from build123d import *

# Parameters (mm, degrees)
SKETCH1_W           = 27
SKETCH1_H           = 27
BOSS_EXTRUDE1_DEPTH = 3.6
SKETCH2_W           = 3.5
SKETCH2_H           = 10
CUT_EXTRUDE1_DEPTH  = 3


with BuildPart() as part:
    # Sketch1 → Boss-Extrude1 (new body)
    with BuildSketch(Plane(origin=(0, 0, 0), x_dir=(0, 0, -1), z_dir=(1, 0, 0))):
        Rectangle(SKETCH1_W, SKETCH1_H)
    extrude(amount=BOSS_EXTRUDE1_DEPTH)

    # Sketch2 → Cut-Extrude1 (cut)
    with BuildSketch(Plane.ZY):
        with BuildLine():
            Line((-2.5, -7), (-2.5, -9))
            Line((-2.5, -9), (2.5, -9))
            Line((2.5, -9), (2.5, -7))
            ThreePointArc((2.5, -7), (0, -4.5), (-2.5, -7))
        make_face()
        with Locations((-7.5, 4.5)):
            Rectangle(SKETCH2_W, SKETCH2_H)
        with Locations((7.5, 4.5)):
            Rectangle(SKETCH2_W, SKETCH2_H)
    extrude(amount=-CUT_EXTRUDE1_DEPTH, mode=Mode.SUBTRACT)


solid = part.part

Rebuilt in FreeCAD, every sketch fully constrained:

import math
import FreeCAD as App
import Part
import Sketcher
from FreeCAD import Vector
Q = App.Units.Quantity


def add_polygon(sketch, points):
    """Adds a closed chain of lines whose ends are joined by coincident constraints."""
    first, n = sketch.GeometryCount, len(points)
    for a, b in zip(points, points[1:] + points[:1]):
        sketch.addGeometry(Part.LineSegment(App.Vector(*a, 0), App.Vector(*b, 0)), False)
    for i in range(n):
        sketch.addConstraint(Sketcher.Constraint("Coincident", first + i, 2, first + (i + 1) % n, 1))

doc = App.newDocument("Part")
body = doc.addObject("PartDesign::Body", "Body")

sketch1 = doc.addObject("Sketcher::SketchObject", "Sketch")
body.addObject(sketch1)
sketch1.AttachmentSupport = (doc.YZ_Plane, [""])
sketch1.MapMode = "FlatFace"
add_polygon(sketch1, [(13.5, 13.5), (-13.5, 13.5), (-13.5, -13.5), (13.5, -13.5)])
sketch1.addConstraint(Sketcher.Constraint("Horizontal", 0))
sketch1.addConstraint(Sketcher.Constraint("Vertical", 1))
sketch1.addConstraint(Sketcher.Constraint("Horizontal", 2))
sketch1.addConstraint(Sketcher.Constraint("Vertical", 3))
sketch1.addConstraint(Sketcher.Constraint("Symmetric", 0, 2, 2, 2, -1, 1))
sketch1.addConstraint(Sketcher.Constraint("Equal", 2, 1))
sketch1.addConstraint(Sketcher.Constraint("DistanceX", 0, 2, 0, 1, Q("27 mm")))
pad1 = doc.addObject("PartDesign::Pad", "Pad")
body.addObject(pad1)
pad1.Profile = sketch1
pad1.Length = 3.6

sketch2 = doc.addObject("Sketcher::SketchObject", "Sketch001")
body.addObject(sketch2)
sketch2.AttachmentSupport = (doc.YZ_Plane, [""])
sketch2.MapMode = "FlatFace"
sketch2.addGeometry(Part.LineSegment(Vector(-7, -2.5, 0), Vector(-9, -2.5, 0)), False)
sketch2.addGeometry(Part.LineSegment(Vector(-9, -2.5, 0), Vector(-9, 2.5, 0)), False)
sketch2.addGeometry(Part.LineSegment(Vector(-9, 2.5, 0), Vector(-7, 2.5, 0)), False)
sketch2.addGeometry(Part.ArcOfCircle(Part.Circle(Vector(-7, 0, 0), Vector(0, 0, 1), 2.5), math.radians(-90), math.radians(90)), False)
add_polygon(sketch2, [(9.5, -9.25), (-0.5, -9.25), (-0.5, -5.75), (9.5, -5.75)])
add_polygon(sketch2, [(9.5, 5.75), (-0.5, 5.75), (-0.5, 9.25), (9.5, 9.25)])
sketch2.addConstraint(Sketcher.Constraint("Coincident", 0, 2, 1, 1))
sketch2.addConstraint(Sketcher.Constraint("Coincident", 1, 2, 2, 1))
sketch2.addConstraint(Sketcher.Constraint("Tangent", 2, 2, 3, 2))
sketch2.addConstraint(Sketcher.Constraint("Tangent", 3, 1, 0, 1))
sketch2.addConstraint(Sketcher.Constraint("Horizontal", 0))
sketch2.addConstraint(Sketcher.Constraint("Vertical", 1))
sketch2.addConstraint(Sketcher.Constraint("Horizontal", 2))
sketch2.addConstraint(Sketcher.Constraint("Horizontal", 4))
sketch2.addConstraint(Sketcher.Constraint("Vertical", 5))
sketch2.addConstraint(Sketcher.Constraint("Horizontal", 6))
sketch2.addConstraint(Sketcher.Constraint("Vertical", 7))
sketch2.addConstraint(Sketcher.Constraint("Horizontal", 8))
sketch2.addConstraint(Sketcher.Constraint("Vertical", 9))
sketch2.addConstraint(Sketcher.Constraint("Horizontal", 10))
sketch2.addConstraint(Sketcher.Constraint("Vertical", 11))
sketch2.addConstraint(Sketcher.Constraint("Symmetric", 5, 2, 8, 2, -1))
sketch2.addConstraint(Sketcher.Constraint("Symmetric", 7, 2, 10, 2, -1))
sketch2.addConstraint(Sketcher.Constraint("PointOnObject", 3, 3, -1))
sketch2.addConstraint(Sketcher.Constraint("Radius", 3, Q("2.5 mm")))
sketch2.addConstraint(Sketcher.Constraint("DistanceX", 0, 2, 0, 1, Q("2 mm")))
sketch2.addConstraint(Sketcher.Constraint("DistanceX", 4, 2, 4, 1, Q("10 mm")))
sketch2.addConstraint(Sketcher.Constraint("DistanceY", 5, 1, 5, 2, Q("3.5 mm")))
sketch2.addConstraint(Sketcher.Constraint("DistanceX", 3, 3, -1, 1, Q("7 mm")))
sketch2.addConstraint(Sketcher.Constraint("DistanceY", 6, 2, 10, 2, Q("15 mm")))
sketch2.addConstraint(Sketcher.Constraint("DistanceX", 4, 2, -1, 1, Q("0.5 mm")))
pocket1 = doc.addObject("PartDesign::Pocket", "Pocket")
body.addObject(pocket1)
pocket1.Profile = sketch2
pocket1.Length = 3
pocket1.Reversed = True

doc.recompute()
